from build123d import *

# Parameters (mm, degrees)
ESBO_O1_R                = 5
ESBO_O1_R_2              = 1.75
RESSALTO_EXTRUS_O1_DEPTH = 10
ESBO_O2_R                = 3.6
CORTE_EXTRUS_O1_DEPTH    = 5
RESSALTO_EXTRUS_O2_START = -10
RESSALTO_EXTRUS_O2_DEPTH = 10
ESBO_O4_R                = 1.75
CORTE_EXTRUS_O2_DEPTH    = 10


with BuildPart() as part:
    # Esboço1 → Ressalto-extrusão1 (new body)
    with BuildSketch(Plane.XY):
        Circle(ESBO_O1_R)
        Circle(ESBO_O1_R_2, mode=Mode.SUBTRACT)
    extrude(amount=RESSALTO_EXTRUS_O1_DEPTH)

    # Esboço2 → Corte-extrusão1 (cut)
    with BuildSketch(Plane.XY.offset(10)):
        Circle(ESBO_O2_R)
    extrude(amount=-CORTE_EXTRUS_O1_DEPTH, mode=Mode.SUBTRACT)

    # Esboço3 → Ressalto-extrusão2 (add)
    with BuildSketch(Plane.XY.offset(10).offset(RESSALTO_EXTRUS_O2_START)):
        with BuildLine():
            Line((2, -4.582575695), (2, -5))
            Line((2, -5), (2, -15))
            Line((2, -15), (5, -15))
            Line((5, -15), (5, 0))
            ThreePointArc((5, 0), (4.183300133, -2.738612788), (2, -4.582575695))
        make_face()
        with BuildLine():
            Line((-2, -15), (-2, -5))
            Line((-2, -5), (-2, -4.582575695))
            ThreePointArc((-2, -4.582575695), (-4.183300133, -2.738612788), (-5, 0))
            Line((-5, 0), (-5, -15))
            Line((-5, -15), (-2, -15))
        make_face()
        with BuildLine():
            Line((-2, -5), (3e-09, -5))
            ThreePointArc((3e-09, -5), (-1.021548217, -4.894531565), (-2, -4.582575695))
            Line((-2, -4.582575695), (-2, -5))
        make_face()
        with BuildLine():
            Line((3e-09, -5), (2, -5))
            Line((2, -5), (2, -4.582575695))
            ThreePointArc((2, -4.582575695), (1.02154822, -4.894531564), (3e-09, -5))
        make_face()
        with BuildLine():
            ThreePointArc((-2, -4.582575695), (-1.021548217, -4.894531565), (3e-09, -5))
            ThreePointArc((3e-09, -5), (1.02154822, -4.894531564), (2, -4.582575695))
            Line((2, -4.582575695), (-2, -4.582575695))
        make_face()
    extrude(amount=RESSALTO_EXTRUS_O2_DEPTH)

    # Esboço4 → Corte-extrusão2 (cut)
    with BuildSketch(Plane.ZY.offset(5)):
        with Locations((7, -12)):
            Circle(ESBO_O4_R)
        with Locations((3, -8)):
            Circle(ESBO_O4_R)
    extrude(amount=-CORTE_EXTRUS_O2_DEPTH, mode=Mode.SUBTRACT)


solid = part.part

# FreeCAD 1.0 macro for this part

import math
import FreeCAD as App
import Part
import Sketcher

doc = App.newDocument("Part")
body = doc.addObject("PartDesign::Body", "Body")

sketch1 = doc.addObject("Sketcher::SketchObject", "Sketch")
body.addObject(sketch1)
sketch1.AttachmentSupport = (doc.XY_Plane, [""])
sketch1.MapMode = "FlatFace"
sketch1.addGeometry([
    Part.Circle(App.Vector(0, 0, 0), App.Vector(0, 0, 1), 5),
    Part.Circle(App.Vector(0, 0, 0), App.Vector(0, 0, 1), 1.8),
], False)
sketch1.addConstraint([
    Sketcher.Constraint("Coincident", 0, 3, -1, 1),
    Sketcher.Constraint("Coincident", 1, 3, -1, 1),
    Sketcher.Constraint("Diameter", 0, 10.0),
    Sketcher.Constraint("Diameter", 1, 3.5),
])
pad1 = doc.addObject("PartDesign::Pad", "Pad")
body.addObject(pad1)
pad1.Profile = sketch1
pad1.Length = 10

sketch2 = doc.addObject("Sketcher::SketchObject", "Sketch001")
body.addObject(sketch2)
sketch2.AttachmentSupport = (doc.XY_Plane, [""])
sketch2.MapMode = "FlatFace"
sketch2.AttachmentOffset = App.Placement(App.Vector(0, 0, 10), App.Rotation())
sketch2.addGeometry(Part.Circle(App.Vector(0, 0, 0), App.Vector(0, 0, 1), 3.6), False)
sketch2.addConstraint([
    Sketcher.Constraint("Coincident", 0, 3, -1, 1),
    Sketcher.Constraint("Diameter", 0, 7.2),
])
pocket1 = doc.addObject("PartDesign::Pocket", "Pocket")
body.addObject(pocket1)
pocket1.Profile = sketch2
pocket1.Length = 5

sketch3 = doc.addObject("Sketcher::SketchObject", "Sketch002")
body.addObject(sketch3)
sketch3.AttachmentSupport = (doc.XY_Plane, [""])
sketch3.MapMode = "FlatFace"
sketch3.addGeometry([
    Part.LineSegment(App.Vector(2, -5, 0), App.Vector(2, -15, 0)),
    Part.LineSegment(App.Vector(2, -15, 0), App.Vector(5, -15, 0)),
    Part.LineSegment(App.Vector(5, -15, 0), App.Vector(5, 0, 0)),
    Part.ArcOfCircle(Part.Circle(App.Vector(0, 0, 0), App.Vector(0, 0, 1), 5), math.radians(-66), math.radians(0)),
    Part.LineSegment(App.Vector(2, -4.6, 0), App.Vector(-2, -4.6, 0)),
    Part.ArcOfCircle(Part.Circle(App.Vector(0, 0, 0), App.Vector(0, 0, 1), 5), math.radians(180), math.radians(246)),
    Part.LineSegment(App.Vector(-5, 0, 0), App.Vector(-5, -15, 0)),
    Part.LineSegment(App.Vector(-5, -15, 0), App.Vector(-2, -15, 0)),
    Part.LineSegment(App.Vector(-2, -15, 0), App.Vector(-2, -5, 0)),
    Part.LineSegment(App.Vector(-2, -5, 0), App.Vector(2, -5, 0)),
], False)
sketch3.addConstraint([
    Sketcher.Constraint("Coincident", 0, 2, 1, 1),
    Sketcher.Constraint("Coincident", 1, 2, 2, 1),
    Sketcher.Constraint("Tangent", 2, 2, 3, 2),
    Sketcher.Constraint("Coincident", 3, 1, 4, 1),
    Sketcher.Constraint("Coincident", 4, 2, 5, 2),
    Sketcher.Constraint("Tangent", 5, 1, 6, 1),
    Sketcher.Constraint("Coincident", 6, 2, 7, 1),
    Sketcher.Constraint("Coincident", 7, 2, 8, 1),
    Sketcher.Constraint("Coincident", 8, 2, 9, 1),
    Sketcher.Constraint("Coincident", 9, 2, 0, 1),
    Sketcher.Constraint("Vertical", 0),
    Sketcher.Constraint("Horizontal", 1),
    Sketcher.Constraint("Vertical", 2),
    Sketcher.Constraint("Horizontal", 4),
    Sketcher.Constraint("Vertical", 6),
    Sketcher.Constraint("Horizontal", 7),
    Sketcher.Constraint("Vertical", 8),
    Sketcher.Constraint("Horizontal", 9),
    Sketcher.Constraint("Coincident", 3, 3, -1, 1),
    Sketcher.Constraint("Coincident", 5, 3, -1, 1),
    Sketcher.Constraint("Equal", 3, 5),
    Sketcher.Constraint("Symmetric", 0, 2, 7, 2, -2),
    Sketcher.Constraint("Vertical", 0, 2, 3, 1),
    Sketcher.Constraint("Radius", 3, 5.0),
    Sketcher.Constraint("DistanceX", 1, 1, 1, 2, 3.0),
    Sketcher.Constraint("DistanceY", 0, 2, 0, 1, 10.0),
    Sketcher.Constraint("DistanceY", 2, 1, 2, 2, 15.0),
])
pad2 = doc.addObject("PartDesign::Pad", "Pad001")
body.addObject(pad2)
pad2.Profile = sketch3
pad2.Length = 10

sketch4 = doc.addObject("Sketcher::SketchObject", "Sketch003")
body.addObject(sketch4)
sketch4.AttachmentSupport = (doc.YZ_Plane, [""])
sketch4.MapMode = "FlatFace"
sketch4.AttachmentOffset = App.Placement(App.Vector(0, 0, -5), App.Rotation())
sketch4.addGeometry([
    Part.Circle(App.Vector(-12, 7, 0), App.Vector(0, 0, 1), 1.8),
    Part.Circle(App.Vector(-8, 3, 0), App.Vector(0, 0, 1), 1.8),
], False)
sketch4.addConstraint([
    Sketcher.Constraint("Equal", 0, 1),
    Sketcher.Constraint("Diameter", 0, 3.5),
    Sketcher.Constraint("DistanceX", 0, 3, -1, 1, 12.0),
    Sketcher.Constraint("DistanceY", -1, 1, 0, 3, 7.0),
    Sketcher.Constraint("DistanceX", 1, 3, -1, 1, 8.0),
    Sketcher.Constraint("DistanceY", -1, 1, 1, 3, 3.0),
])
pocket2 = doc.addObject("PartDesign::Pocket", "Pocket001")
body.addObject(pocket2)
pocket2.Profile = sketch4
pocket2.Length = 10
pocket2.Reversed = True

doc.recompute()
